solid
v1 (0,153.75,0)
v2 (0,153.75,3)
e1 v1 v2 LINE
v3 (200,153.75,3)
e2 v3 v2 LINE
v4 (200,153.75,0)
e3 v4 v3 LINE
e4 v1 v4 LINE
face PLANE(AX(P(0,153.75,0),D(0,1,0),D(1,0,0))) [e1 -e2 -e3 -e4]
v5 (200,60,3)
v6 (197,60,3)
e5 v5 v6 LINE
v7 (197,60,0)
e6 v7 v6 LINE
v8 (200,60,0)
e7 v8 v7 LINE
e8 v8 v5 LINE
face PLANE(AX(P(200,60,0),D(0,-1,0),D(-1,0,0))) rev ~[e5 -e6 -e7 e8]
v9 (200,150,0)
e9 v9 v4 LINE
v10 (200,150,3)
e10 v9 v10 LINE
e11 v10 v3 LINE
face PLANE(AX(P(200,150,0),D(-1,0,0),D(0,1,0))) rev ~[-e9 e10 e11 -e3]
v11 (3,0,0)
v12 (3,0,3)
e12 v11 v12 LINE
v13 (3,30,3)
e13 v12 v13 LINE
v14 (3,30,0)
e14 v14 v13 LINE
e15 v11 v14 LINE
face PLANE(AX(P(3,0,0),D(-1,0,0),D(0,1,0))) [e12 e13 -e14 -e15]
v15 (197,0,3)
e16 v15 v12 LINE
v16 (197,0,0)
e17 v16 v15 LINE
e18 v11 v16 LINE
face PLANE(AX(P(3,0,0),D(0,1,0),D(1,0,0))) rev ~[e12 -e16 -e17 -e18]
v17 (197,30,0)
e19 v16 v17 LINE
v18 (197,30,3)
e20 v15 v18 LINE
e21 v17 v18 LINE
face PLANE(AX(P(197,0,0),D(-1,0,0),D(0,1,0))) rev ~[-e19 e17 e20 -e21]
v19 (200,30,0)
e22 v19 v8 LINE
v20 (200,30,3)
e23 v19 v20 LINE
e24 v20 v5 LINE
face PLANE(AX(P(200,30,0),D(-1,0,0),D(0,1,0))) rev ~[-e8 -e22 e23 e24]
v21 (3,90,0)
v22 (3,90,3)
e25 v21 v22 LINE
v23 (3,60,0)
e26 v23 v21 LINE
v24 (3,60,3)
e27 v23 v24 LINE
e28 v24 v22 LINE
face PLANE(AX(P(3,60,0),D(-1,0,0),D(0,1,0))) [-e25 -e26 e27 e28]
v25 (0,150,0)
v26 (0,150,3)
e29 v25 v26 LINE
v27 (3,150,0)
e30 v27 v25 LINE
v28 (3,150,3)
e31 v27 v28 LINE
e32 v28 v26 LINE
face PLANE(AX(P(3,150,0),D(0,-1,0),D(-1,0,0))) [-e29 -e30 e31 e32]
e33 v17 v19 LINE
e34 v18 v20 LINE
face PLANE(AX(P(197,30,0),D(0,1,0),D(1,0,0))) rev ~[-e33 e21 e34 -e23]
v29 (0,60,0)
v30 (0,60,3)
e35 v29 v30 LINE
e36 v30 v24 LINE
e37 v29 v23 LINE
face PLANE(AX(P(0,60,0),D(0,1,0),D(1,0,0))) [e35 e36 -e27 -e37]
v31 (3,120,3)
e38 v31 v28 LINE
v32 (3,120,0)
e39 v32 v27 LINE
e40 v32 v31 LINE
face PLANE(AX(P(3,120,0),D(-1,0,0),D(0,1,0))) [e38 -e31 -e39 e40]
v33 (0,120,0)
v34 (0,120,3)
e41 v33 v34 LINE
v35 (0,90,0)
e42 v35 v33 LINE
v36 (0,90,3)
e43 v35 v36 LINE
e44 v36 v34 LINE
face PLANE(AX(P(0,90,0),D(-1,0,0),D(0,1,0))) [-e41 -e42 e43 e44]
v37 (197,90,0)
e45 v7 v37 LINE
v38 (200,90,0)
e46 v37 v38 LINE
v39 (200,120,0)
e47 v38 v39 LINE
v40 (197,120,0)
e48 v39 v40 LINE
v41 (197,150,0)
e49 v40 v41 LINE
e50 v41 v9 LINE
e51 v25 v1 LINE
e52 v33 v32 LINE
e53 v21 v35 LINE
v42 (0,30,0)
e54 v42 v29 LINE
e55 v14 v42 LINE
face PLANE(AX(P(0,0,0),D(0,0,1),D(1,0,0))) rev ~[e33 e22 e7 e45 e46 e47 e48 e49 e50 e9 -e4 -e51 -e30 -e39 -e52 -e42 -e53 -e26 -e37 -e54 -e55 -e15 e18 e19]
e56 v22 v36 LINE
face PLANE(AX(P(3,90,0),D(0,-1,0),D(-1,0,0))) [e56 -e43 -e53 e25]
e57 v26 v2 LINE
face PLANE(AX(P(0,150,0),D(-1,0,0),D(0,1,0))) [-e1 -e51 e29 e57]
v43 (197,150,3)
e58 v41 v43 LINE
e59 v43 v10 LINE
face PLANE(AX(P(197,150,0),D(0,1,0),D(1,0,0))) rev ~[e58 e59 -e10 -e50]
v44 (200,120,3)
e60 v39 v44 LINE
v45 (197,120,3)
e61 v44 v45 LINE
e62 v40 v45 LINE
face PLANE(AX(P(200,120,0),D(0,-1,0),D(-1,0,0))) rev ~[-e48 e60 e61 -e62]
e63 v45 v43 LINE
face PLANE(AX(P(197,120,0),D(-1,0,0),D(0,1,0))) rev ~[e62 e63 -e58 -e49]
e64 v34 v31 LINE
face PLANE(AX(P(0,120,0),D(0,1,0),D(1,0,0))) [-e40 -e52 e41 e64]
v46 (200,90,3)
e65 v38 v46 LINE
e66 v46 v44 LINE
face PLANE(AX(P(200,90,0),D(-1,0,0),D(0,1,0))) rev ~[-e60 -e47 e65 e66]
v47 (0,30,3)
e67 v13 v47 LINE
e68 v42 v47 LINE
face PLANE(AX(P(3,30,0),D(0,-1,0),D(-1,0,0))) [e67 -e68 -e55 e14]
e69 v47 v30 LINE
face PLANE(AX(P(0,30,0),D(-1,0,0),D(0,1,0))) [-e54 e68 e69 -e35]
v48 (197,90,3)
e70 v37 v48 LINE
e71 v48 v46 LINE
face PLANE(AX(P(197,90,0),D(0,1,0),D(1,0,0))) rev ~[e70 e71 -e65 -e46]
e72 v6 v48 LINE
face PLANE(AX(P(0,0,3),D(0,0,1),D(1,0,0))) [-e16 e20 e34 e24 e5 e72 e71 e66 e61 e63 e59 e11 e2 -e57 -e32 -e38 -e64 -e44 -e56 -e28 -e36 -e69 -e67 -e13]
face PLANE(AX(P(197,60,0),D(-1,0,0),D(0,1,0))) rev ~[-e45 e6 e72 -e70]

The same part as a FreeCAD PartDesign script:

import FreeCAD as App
import Part
import Sketcher
from FreeCAD import Vector


def add_polygon(sketch, points):
    """Adds a closed chain of lines whose ends are joined by coincident constraints."""
    first, n = sketch.GeometryCount, len(points)
    for a, b in zip(points, points[1:] + points[:1]):
        sketch.addGeometry(Part.LineSegment(App.Vector(*a, 0), App.Vector(*b, 0)), False)
    for i in range(n):
        sketch.addConstraint(Sketcher.Constraint("Coincident", first + i, 2, first + (i + 1) % n, 1))

doc = App.newDocument("Part")
body = doc.addObject("PartDesign::Body", "Body")

# Sketch on XY plane
sketch1 = body.newObject("Sketcher::SketchObject", "Sketch")
sketch1.AttachmentSupport = (doc.getObject("XY_Plane"), [""])
sketch1.MapMode = "FlatFace"
add_polygon(sketch1, [(3, 30), (3, 0), (197, 0), (197, 30), (200, 30), (200, 60), (197, 60), (197, 90), (200, 90), (200, 120), (197, 120), (197, 150), (200, 150), (200, 153.8), (0, 153.8), (0, 150), (3, 150), (3, 120), (0, 120), (0, 90), (3, 90), (3, 60), (0, 60), (0, 30)])  # lines 0-23
sketch1.addConstraint([
    Sketcher.Constraint("Vertical", 0),
    Sketcher.Constraint("Horizontal", 1),
    Sketcher.Constraint("Vertical", 2),
    Sketcher.Constraint("Horizontal", 3),
    Sketcher.Constraint("Vertical", 4),
    Sketcher.Constraint("Horizontal", 5),
    Sketcher.Constraint("Vertical", 6),
    Sketcher.Constraint("Horizontal", 7),
    Sketcher.Constraint("Vertical", 8),
    Sketcher.Constraint("Horizontal", 9),
    Sketcher.Constraint("Vertical", 10),
    Sketcher.Constraint("Horizontal", 11),
    Sketcher.Constraint("Vertical", 12),
    Sketcher.Constraint("Horizontal", 13),
    Sketcher.Constraint("Vertical", 14),
    Sketcher.Constraint("Horizontal", 15),
    Sketcher.Constraint("Vertical", 16),
    Sketcher.Constraint("Horizontal", 17),
    Sketcher.Constraint("Vertical", 18),
    Sketcher.Constraint("Horizontal", 19),
    Sketcher.Constraint("Vertical", 20),
    Sketcher.Constraint("Horizontal", 21),
    Sketcher.Constraint("Vertical", 22),
    Sketcher.Constraint("Horizontal", 23),
    Sketcher.Constraint("PointOnObject", 0, 2, -1),
    Sketcher.Constraint("PointOnObject", 13, 2, -2),
    Sketcher.Constraint("PointOnObject", 17, 2, -2),
    Sketcher.Constraint("PointOnObject", 21, 2, -2),
    Sketcher.Constraint("Horizontal", 11, 2, 14, 2),
    Sketcher.Constraint("Horizontal", 9, 2, 16, 2),
    Sketcher.Constraint("Horizontal", 7, 2, 18, 2),
    Sketcher.Constraint("Horizontal", 5, 2, 20, 2),
    Sketcher.Constraint("Horizontal", 3, 2, 22, 2),
    Sketcher.Constraint("Vertical", 2, 2, 5, 2),
    Sketcher.Constraint("Vertical", 4, 2, 7, 2),
    Sketcher.Constraint("Vertical", 6, 2, 9, 2),
    Sketcher.Constraint("Vertical", 8, 2, 11, 2),
    Sketcher.Constraint("Vertical", 0, 2, 15, 2),
    Sketcher.Constraint("Vertical", 16, 2, 19, 2),
    Sketcher.Constraint("Equal", 11, 15),
    Sketcher.Constraint("Equal", 2, 4),
    Sketcher.Constraint("Equal", 4, 6),
    Sketcher.Constraint("Equal", 6, 8),
    Sketcher.Constraint("Equal", 8, 10),
    Sketcher.Constraint("DistanceX", 3, 1, 3, 2, 3.0),
    Sketcher.Constraint("DistanceX", 13, 2, 13, 1, 200.0),
    Sketcher.Constraint("DistanceY", 0, 2, 0, 1, 30.0),
    Sketcher.Constraint("DistanceY", 12, 1, 12, 2, 3.75),
])
pad1 = body.newObject("PartDesign::Pad", "Pad")
pad1.Profile = sketch1
pad1.Length = 3

doc.recompute()
